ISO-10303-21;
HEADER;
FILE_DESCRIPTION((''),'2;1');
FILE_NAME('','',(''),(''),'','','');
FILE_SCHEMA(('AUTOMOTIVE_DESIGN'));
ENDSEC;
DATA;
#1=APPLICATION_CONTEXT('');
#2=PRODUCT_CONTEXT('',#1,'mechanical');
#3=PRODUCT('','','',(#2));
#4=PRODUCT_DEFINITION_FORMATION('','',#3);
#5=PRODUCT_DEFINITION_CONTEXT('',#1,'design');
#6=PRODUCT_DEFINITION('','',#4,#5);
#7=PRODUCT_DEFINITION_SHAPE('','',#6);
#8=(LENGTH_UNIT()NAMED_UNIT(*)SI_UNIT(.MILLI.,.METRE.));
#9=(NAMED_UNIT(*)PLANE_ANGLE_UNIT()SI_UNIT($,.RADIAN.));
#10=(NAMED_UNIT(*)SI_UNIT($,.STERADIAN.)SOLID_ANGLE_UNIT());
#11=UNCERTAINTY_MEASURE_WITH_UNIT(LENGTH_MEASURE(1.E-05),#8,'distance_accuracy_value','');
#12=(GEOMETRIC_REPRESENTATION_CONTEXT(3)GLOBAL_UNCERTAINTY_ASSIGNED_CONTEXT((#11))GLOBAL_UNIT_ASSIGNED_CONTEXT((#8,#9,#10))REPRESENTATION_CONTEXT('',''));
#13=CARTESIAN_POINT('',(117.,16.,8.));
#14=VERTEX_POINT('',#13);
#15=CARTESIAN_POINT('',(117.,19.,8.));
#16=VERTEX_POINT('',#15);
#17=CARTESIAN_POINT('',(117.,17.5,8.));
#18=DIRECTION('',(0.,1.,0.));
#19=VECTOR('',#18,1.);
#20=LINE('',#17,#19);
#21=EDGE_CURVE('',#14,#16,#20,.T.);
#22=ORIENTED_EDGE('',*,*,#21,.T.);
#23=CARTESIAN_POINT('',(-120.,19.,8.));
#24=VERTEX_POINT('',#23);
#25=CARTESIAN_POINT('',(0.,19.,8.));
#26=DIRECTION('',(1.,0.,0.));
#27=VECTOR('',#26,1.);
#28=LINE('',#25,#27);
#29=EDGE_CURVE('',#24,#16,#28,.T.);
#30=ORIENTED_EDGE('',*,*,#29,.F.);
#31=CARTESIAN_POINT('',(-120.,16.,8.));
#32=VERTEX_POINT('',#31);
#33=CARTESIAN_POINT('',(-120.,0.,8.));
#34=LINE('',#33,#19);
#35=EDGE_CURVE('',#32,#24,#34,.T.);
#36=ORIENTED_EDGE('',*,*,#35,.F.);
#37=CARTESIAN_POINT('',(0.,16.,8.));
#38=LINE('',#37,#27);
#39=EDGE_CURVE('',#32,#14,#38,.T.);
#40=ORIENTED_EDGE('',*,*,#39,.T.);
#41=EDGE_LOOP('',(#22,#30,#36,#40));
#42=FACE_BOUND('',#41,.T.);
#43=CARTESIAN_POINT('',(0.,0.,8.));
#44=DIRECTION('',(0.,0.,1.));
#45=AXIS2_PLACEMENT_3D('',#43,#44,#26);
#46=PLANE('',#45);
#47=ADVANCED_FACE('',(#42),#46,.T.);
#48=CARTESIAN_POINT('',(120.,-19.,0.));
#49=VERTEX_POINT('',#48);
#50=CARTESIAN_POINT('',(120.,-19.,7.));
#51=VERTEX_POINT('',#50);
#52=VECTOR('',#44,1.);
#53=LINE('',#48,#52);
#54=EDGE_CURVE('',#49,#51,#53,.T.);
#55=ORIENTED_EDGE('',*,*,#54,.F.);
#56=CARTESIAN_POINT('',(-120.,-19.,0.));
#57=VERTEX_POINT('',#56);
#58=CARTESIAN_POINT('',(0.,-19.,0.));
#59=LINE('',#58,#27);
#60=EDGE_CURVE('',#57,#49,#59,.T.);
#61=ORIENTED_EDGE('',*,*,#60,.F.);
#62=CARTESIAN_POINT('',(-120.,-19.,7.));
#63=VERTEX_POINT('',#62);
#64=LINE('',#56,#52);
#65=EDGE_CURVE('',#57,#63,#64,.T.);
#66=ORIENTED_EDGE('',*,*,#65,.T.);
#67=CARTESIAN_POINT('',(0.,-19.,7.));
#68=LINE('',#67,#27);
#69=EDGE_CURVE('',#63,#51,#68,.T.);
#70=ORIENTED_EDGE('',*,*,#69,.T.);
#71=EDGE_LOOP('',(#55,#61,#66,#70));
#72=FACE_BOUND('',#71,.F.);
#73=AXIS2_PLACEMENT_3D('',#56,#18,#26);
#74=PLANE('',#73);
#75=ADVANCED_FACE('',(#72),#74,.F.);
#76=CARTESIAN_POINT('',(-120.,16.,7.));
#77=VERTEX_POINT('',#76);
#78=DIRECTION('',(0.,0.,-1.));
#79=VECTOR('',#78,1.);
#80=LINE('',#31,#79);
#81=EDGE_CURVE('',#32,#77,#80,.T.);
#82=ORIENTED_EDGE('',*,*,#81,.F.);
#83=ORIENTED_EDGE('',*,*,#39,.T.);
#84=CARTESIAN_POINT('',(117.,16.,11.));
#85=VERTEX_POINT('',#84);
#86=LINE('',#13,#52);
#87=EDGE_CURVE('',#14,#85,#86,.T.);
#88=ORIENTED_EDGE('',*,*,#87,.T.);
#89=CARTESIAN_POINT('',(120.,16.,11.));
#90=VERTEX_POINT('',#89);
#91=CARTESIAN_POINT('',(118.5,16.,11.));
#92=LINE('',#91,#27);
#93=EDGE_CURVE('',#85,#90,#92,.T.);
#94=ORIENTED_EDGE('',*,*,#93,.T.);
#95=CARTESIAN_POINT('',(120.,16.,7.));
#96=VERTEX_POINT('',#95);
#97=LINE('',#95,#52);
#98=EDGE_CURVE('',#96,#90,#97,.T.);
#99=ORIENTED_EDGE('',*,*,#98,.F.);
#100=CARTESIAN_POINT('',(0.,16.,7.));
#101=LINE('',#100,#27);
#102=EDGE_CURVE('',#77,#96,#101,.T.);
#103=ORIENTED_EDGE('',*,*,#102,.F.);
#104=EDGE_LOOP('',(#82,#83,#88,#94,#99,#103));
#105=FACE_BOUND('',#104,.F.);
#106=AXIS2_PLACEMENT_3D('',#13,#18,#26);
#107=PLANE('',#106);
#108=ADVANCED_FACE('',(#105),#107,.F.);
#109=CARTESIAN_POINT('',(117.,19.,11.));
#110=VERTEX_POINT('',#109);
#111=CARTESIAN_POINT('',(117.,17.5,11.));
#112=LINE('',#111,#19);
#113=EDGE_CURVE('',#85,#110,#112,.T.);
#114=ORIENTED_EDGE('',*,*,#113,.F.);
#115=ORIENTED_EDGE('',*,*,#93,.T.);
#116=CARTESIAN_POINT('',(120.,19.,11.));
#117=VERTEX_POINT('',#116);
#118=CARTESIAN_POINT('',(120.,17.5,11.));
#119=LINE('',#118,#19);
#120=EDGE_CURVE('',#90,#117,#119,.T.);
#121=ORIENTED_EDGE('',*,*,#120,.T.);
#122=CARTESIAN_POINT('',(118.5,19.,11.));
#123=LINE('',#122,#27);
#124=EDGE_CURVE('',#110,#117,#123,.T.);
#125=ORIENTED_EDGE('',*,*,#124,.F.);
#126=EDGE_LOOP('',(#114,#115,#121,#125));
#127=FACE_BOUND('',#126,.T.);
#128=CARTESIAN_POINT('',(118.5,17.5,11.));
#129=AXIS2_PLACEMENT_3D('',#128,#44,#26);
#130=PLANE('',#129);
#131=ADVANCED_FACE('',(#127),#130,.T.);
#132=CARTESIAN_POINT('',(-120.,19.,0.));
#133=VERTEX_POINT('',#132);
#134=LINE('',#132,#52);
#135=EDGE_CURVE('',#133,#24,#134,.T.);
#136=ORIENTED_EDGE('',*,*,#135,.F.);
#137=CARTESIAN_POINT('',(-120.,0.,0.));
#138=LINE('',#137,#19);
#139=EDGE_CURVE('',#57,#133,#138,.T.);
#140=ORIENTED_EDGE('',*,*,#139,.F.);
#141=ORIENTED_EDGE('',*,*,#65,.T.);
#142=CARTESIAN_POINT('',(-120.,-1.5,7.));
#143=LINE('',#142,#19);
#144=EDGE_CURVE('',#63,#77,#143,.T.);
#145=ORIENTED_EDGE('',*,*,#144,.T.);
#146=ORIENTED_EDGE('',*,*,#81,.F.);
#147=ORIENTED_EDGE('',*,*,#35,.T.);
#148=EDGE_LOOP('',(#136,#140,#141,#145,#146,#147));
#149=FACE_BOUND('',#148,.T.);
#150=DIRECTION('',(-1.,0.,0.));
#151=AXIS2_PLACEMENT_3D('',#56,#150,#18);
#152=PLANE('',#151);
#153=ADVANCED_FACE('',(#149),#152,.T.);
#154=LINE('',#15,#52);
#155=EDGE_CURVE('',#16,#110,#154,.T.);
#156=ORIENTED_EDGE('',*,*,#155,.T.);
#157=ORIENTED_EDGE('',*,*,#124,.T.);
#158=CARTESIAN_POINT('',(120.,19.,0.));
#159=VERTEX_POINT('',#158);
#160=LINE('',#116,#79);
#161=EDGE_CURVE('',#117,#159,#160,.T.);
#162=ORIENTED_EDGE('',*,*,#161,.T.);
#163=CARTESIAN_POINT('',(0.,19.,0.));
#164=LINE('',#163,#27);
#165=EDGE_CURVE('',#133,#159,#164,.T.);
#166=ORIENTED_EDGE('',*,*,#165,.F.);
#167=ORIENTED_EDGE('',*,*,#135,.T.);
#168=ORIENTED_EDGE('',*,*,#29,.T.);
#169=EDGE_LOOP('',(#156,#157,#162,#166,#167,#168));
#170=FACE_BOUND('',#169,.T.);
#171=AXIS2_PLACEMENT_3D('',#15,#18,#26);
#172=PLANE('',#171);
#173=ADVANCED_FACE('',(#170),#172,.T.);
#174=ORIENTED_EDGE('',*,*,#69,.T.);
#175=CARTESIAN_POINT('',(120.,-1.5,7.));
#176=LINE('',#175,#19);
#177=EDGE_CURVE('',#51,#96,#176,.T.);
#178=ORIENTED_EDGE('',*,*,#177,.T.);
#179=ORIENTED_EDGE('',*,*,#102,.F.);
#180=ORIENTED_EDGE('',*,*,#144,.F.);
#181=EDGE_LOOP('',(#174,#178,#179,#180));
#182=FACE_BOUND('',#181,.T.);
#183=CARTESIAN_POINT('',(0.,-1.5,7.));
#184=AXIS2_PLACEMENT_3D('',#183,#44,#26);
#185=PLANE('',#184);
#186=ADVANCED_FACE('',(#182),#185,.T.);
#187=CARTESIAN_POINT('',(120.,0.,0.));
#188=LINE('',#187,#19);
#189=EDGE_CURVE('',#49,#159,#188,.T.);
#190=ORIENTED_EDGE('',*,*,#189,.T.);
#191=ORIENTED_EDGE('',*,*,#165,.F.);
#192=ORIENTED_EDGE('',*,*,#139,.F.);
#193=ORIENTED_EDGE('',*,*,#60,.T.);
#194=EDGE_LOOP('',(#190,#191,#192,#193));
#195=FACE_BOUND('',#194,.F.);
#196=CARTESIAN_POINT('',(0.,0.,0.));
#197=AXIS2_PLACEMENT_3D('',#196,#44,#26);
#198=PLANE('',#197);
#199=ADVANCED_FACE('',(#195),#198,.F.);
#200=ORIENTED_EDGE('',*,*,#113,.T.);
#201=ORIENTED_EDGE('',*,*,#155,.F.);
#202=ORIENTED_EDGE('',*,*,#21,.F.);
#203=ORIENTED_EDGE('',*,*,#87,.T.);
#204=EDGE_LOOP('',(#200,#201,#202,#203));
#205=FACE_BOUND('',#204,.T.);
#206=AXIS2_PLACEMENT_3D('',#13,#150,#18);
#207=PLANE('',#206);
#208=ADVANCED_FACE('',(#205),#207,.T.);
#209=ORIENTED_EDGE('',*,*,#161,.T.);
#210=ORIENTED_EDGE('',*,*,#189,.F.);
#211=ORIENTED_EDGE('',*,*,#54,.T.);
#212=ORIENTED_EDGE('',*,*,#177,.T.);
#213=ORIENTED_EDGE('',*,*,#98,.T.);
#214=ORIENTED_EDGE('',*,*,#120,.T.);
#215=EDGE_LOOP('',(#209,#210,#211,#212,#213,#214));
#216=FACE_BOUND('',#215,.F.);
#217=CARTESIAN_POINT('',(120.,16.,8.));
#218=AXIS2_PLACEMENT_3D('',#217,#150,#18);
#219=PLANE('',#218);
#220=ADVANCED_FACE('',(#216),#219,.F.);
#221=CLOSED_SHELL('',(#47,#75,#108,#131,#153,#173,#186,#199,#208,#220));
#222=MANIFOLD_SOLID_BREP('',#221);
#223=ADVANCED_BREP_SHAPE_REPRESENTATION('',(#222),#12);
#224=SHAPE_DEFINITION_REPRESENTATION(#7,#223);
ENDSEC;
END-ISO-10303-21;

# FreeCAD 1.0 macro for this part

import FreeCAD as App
import Part
import Sketcher
Q = App.Units.Quantity

doc = App.newDocument("Part")
params = doc.addObject("Spreadsheet::Sheet", "Params")
for row, (alias, value) in enumerate([
    ("sketch1_width", "240 mm"),
    ("sketch1_height", "38 mm"),
    ("pad1_length", "8 mm"),
    ("sketch2_width", "240 mm"),
    ("sketch2_height", "35 mm"),
    ("pocket1_length", "1 mm"),
    ("sketch3_width", "3 mm"),
    ("pad2_length", "3 mm"),
], start=1):
    params.set(f"A{row}", alias)
    params.set(f"B{row}", "=" + value)
    params.setAlias(f"B{row}", alias)

body = doc.addObject("PartDesign::Body", "Body")

# Sketch on XY plane
sketch1 = doc.addObject("Sketcher::SketchObject", "Sketch")
body.addObject(sketch1)
sketch1.AttachmentSupport = (doc.XY_Plane, [""])
sketch1.MapMode = "FlatFace"
sketch1.addGeometry([
    Part.LineSegment(App.Vector(-120, 19, 0), App.Vector(-120, -19, 0)),
    Part.LineSegment(App.Vector(-120, -19, 0), App.Vector(120, -19, 0)),
    Part.LineSegment(App.Vector(120, -19, 0), App.Vector(120, 19, 0)),
    Part.LineSegment(App.Vector(120, 19, 0), App.Vector(-120, 19, 0)),
], False)
sketch1.addConstraint([
    Sketcher.Constraint("Coincident", 0, 2, 1, 1),
    Sketcher.Constraint("Coincident", 1, 2, 2, 1),
    Sketcher.Constraint("Coincident", 2, 2, 3, 1),
    Sketcher.Constraint("Coincident", 3, 2, 0, 1),
    Sketcher.Constraint("Vertical", 0),
    Sketcher.Constraint("Horizontal", 1),
    Sketcher.Constraint("Vertical", 2),
    Sketcher.Constraint("Horizontal", 3),
    Sketcher.Constraint("Symmetric", 0, 2, 2, 2, -1, 1),
    Sketcher.Constraint("DistanceX", 1, 1, 1, 2, Q("240 mm")),
    Sketcher.Constraint("DistanceY", 0, 2, 0, 1, Q("38 mm")),
])
sketch1.setExpression("Constraints[9]", "Params.sketch1_width")
sketch1.setExpression("Constraints[10]", "Params.sketch1_height")
pad1 = doc.addObject("PartDesign::Pad", "Pad")
body.addObject(pad1)
pad1.Profile = sketch1
pad1.setExpression("Length", "Params.pad1_length")

# Sketch on XY plane
sketch2 = doc.addObject("Sketcher::SketchObject", "Sketch001")
body.addObject(sketch2)
sketch2.AttachmentSupport = (doc.XY_Plane, [""])
sketch2.MapMode = "FlatFace"
sketch2.AttachmentOffset = App.Placement(App.Vector(0, 0, 8), App.Rotation())
sketch2.addGeometry([
    Part.LineSegment(App.Vector(-120, 16, 0), App.Vector(-120, -19, 0)),
    Part.LineSegment(App.Vector(-120, -19, 0), App.Vector(120, -19, 0)),
    Part.LineSegment(App.Vector(120, -19, 0), App.Vector(120, 16, 0)),
    Part.LineSegment(App.Vector(120, 16, 0), App.Vector(-120, 16, 0)),
], False)
sketch2.addConstraint([
    Sketcher.Constraint("Coincident", 0, 2, 1, 1),
    Sketcher.Constraint("Coincident", 1, 2, 2, 1),
    Sketcher.Constraint("Coincident", 2, 2, 3, 1),
    Sketcher.Constraint("Coincident", 3, 2, 0, 1),
    Sketcher.Constraint("Vertical", 0),
    Sketcher.Constraint("Horizontal", 1),
    Sketcher.Constraint("Vertical", 2),
    Sketcher.Constraint("Horizontal", 3),
    Sketcher.Constraint("DistanceX", 1, 1, 1, 2, Q("240 mm")),
    Sketcher.Constraint("DistanceY", 0, 2, 0, 1, Q("35 mm")),
    Sketcher.Constraint("DistanceX", 0, 2, -1, 1, Q("120 mm")),
    Sketcher.Constraint("DistanceY", 0, 2, -1, 1, Q("19 mm")),
])
sketch2.setExpression("Constraints[8]", "Params.sketch2_width")
sketch2.setExpression("Constraints[9]", "Params.sketch2_height")
pocket1 = doc.addObject("PartDesign::Pocket", "Pocket")
body.addObject(pocket1)
pocket1.Profile = sketch2
pocket1.setExpression("Length", "Params.pocket1_length")

# Sketch on XY plane
sketch3 = doc.addObject("Sketcher::SketchObject", "Sketch002")
body.addObject(sketch3)
sketch3.AttachmentSupport = (doc.XY_Plane, [""])
sketch3.MapMode = "FlatFace"
sketch3.AttachmentOffset = App.Placement(App.Vector(0, 0, 8), App.Rotation())
sketch3.addGeometry([
    Part.LineSegment(App.Vector(117, 19, 0), App.Vector(117, 16, 0)),
    Part.LineSegment(App.Vector(117, 16, 0), App.Vector(120, 16, 0)),
    Part.LineSegment(App.Vector(120, 16, 0), App.Vector(120, 19, 0)),
    Part.LineSegment(App.Vector(120, 19, 0), App.Vector(117, 19, 0)),
], False)
sketch3.addConstraint([
    Sketcher.Constraint("Coincident", 0, 2, 1, 1),
    Sketcher.Constraint("Coincident", 1, 2, 2, 1),
    Sketcher.Constraint("Coincident", 2, 2, 3, 1),
    Sketcher.Constraint("Coincident", 3, 2, 0, 1),
    Sketcher.Constraint("Vertical", 0),
    Sketcher.Constraint("Horizontal", 1),
    Sketcher.Constraint("Vertical", 2),
    Sketcher.Constraint("Horizontal", 3),
    Sketcher.Constraint("Equal", 3, 0),
    Sketcher.Constraint("DistanceX", 1, 1, 1, 2, Q("3 mm")),
    Sketcher.Constraint("DistanceX", -1, 1, 0, 2, Q("117 mm")),
    Sketcher.Constraint("DistanceY", -1, 1, 0, 2, Q("16 mm")),
])
sketch3.setExpression("Constraints[9]", "Params.sketch3_width")
pad2 = doc.addObject("PartDesign::Pad", "Pad001")
body.addObject(pad2)
pad2.Profile = sketch3
pad2.setExpression("Length", "Params.pad2_length")

doc.recompute()
